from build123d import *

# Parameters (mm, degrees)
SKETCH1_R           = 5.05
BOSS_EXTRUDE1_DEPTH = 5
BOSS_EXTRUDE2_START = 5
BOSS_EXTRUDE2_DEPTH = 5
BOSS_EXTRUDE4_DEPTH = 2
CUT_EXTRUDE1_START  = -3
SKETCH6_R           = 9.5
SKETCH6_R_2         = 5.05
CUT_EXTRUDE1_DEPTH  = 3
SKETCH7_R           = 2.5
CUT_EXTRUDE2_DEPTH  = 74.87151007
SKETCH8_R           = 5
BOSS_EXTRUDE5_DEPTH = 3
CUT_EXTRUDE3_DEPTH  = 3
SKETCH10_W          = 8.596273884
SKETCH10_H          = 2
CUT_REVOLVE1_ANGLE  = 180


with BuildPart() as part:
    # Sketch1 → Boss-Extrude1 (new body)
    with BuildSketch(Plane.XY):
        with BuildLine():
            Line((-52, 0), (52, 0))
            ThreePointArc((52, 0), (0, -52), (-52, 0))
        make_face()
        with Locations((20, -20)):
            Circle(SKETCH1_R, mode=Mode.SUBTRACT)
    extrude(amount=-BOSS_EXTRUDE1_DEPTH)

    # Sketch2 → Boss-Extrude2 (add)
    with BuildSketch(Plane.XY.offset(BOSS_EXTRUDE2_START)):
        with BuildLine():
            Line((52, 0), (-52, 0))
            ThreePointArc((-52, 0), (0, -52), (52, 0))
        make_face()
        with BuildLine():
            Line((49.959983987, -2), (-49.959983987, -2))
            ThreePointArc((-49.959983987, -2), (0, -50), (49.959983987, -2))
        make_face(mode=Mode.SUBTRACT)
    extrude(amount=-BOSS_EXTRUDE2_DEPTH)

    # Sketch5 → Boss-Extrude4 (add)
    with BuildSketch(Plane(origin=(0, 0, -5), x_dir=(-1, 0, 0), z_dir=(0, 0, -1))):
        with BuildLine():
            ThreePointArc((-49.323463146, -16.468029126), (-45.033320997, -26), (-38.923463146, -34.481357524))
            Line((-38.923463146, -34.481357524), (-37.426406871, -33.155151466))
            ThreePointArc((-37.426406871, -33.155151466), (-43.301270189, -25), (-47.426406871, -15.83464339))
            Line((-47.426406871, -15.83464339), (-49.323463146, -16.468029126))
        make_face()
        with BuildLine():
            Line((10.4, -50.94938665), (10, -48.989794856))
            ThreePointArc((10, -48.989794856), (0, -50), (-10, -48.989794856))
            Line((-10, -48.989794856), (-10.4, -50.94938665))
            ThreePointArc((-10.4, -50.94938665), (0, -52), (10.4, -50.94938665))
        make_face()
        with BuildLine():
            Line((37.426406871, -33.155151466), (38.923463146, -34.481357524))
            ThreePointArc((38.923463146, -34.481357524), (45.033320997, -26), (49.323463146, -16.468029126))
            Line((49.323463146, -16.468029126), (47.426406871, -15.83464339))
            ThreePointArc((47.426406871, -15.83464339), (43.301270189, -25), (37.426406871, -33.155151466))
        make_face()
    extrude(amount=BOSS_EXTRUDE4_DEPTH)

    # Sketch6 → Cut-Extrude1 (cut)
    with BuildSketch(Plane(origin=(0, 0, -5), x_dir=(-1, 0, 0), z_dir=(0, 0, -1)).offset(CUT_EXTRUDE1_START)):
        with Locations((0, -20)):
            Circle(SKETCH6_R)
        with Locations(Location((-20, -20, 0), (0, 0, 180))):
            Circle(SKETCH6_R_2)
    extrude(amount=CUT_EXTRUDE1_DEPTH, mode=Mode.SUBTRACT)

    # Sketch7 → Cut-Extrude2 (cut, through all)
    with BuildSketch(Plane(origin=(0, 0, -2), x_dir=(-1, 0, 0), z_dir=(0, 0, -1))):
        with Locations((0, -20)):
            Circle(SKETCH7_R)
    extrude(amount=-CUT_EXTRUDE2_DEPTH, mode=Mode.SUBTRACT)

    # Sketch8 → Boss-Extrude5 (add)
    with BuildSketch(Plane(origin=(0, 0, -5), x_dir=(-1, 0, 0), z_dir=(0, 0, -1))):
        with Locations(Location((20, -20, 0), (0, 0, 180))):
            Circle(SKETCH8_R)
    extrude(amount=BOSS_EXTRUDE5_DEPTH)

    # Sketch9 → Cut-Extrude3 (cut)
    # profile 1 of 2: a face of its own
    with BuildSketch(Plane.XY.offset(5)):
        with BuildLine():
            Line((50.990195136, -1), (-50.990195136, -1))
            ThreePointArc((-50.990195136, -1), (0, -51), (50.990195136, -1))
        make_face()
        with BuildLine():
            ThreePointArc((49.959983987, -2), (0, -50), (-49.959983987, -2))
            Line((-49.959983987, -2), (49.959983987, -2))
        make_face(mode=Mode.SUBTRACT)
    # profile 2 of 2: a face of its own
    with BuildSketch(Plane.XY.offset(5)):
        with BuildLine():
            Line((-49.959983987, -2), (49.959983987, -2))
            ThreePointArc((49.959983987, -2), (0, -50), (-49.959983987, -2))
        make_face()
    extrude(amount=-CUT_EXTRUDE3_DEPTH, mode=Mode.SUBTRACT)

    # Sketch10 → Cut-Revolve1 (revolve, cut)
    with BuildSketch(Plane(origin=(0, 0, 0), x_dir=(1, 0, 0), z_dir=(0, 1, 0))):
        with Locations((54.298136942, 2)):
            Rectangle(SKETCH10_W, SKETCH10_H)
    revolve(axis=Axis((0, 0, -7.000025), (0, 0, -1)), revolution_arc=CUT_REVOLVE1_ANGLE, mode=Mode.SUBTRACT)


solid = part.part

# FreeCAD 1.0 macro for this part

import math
import FreeCAD as App
import Part
import Sketcher
from FreeCAD import Vector
Q = App.Units.Quantity


def add_polygon(sketch, points):
    """Adds a closed chain of lines whose ends are joined by coincident constraints."""
    first, n = sketch.GeometryCount, len(points)
    for a, b in zip(points, points[1:] + points[:1]):
        sketch.addGeometry(Part.LineSegment(App.Vector(*a, 0), App.Vector(*b, 0)), False)
    for i in range(n):
        sketch.addConstraint(Sketcher.Constraint("Coincident", first + i, 2, first + (i + 1) % n, 1))

doc = App.newDocument("Part")
params = doc.addObject("Spreadsheet::Sheet", "Params")
for row, (alias, value) in enumerate([
    ("sketch1_radius", "52 mm"),
    ("sketch1_diameter", "10.1 mm"),
    ("pad1_length", "5 mm"),
    ("sketch2_radius", "52 mm"),
    ("sketch2_radius2", "50 mm"),
    ("pad2_length", "5 mm"),
    ("sketch3_radius", "52 mm"),
    ("sketch3_radius2", "50 mm"),
    ("pad3_length", "2 mm"),
    ("sketch4_diameter", "19 mm"),
    ("sketch4_diameter2", "10.1 mm"),
    ("pocket1_length", "3 mm"),
    ("sketch5_diameter", "5 mm"),
    ("sketch6_diameter", "10 mm"),
    ("pad4_length", "3 mm"),
    ("sketch7_radius", "51 mm"),
    ("pocket3_length", "3 mm"),
    ("sketch8_height", "2 mm"),
    ("groove_angle", "180 deg"),
], start=1):
    params.set(f"A{row}", alias)
    params.set(f"B{row}", "=" + value)
    params.setAlias(f"B{row}", alias)

body = doc.addObject("PartDesign::Body", "Body")

# Sketch on XY plane
sketch1 = doc.addObject("Sketcher::SketchObject", "Sketch")
body.addObject(sketch1)
sketch1.AttachmentSupport = (doc.XY_Plane, [""])
sketch1.MapMode = "FlatFace"
sketch1.addGeometry([
    Part.LineSegment(Vector(52, 0, 0), Vector(-52, 0, 0)),
    Part.ArcOfCircle(Part.Circle(Vector(0, 0, 0), Vector(0, 0, 1), 52), math.radians(180), math.radians(360)),
    Part.Circle(Vector(20, -20, 0), Vector(0, 0, 1), 5),
], False)
sketch1.addConstraint([
    Sketcher.Constraint("Coincident", 0, 1, 1, 2),
    Sketcher.Constraint("Coincident", 1, 1, 0, 2),
    Sketcher.Constraint("Horizontal", 0),
    Sketcher.Constraint("Coincident", 1, 3, -1, 1),
    Sketcher.Constraint("PointOnObject", 0, 1, -1),
    Sketcher.Constraint("Radius", 1, Q("52 mm")),
    Sketcher.Constraint("Diameter", 2, Q("10.1 mm")),
    Sketcher.Constraint("DistanceX", -1, 1, 2, 3, Q("20 mm")),
    Sketcher.Constraint("DistanceY", 2, 3, -1, 1, Q("20 mm")),
])
sketch1.setExpression("Constraints[5]", "Params.sketch1_radius")
sketch1.setExpression("Constraints[6]", "Params.sketch1_diameter")
pad1 = doc.addObject("PartDesign::Pad", "Pad")
body.addObject(pad1)
pad1.Profile = sketch1
pad1.setExpression("Length", "Params.pad1_length")
pad1.Reversed = True

# Sketch on XY plane
sketch2 = doc.addObject("Sketcher::SketchObject", "Sketch001")
body.addObject(sketch2)
sketch2.AttachmentSupport = (doc.XY_Plane, [""])
sketch2.MapMode = "FlatFace"
sketch2.AttachmentOffset = App.Placement(Vector(0, 0, 5), App.Rotation())
sketch2.addGeometry([
    Part.LineSegment(Vector(52, 0, 0), Vector(-52, 0, 0)),
    Part.ArcOfCircle(Part.Circle(Vector(0, 0, 0), Vector(0, 0, 1), 52), math.radians(180), math.radians(360)),
    Part.LineSegment(Vector(-50, -2, 0), Vector(50, -2, 0)),
    Part.ArcOfCircle(Part.Circle(Vector(0, 0, 0), Vector(0, 0, 1), 50), math.radians(-178), math.radians(-2)),
], False)
sketch2.addConstraint([
    Sketcher.Constraint("Coincident", 0, 1, 1, 2),
    Sketcher.Constraint("Coincident", 1, 1, 0, 2),
    Sketcher.Constraint("Coincident", 2, 1, 3, 1),
    Sketcher.Constraint("Coincident", 3, 2, 2, 2),
    Sketcher.Constraint("Horizontal", 0),
    Sketcher.Constraint("Horizontal", 2),
    Sketcher.Constraint("Coincident", 1, 3, -1, 1),
    Sketcher.Constraint("Coincident", 3, 3, -1, 1),
    Sketcher.Constraint("PointOnObject", 0, 1, -1),
    Sketcher.Constraint("Radius", 1, Q("52 mm")),
    Sketcher.Constraint("Radius", 3, Q("50 mm")),
    Sketcher.Constraint("DistanceY", 2, 1, -1, 1, Q("2 mm")),
])
sketch2.setExpression("Constraints[9]", "Params.sketch2_radius")
sketch2.setExpression("Constraints[10]", "Params.sketch2_radius2")
pad2 = doc.addObject("PartDesign::Pad", "Pad001")
body.addObject(pad2)
pad2.Profile = sketch2
pad2.setExpression("Length", "Params.pad2_length")
pad2.Reversed = True

# Sketch on XY plane
sketch3 = doc.addObject("Sketcher::SketchObject", "Sketch002")
body.addObject(sketch3)
sketch3.AttachmentSupport = (doc.XY_Plane, [""])
sketch3.MapMode = "FlatFace"
sketch3.AttachmentOffset = App.Placement(Vector(0, 0, -5), App.Rotation())
sketch3.addGeometry([
    Part.ArcOfCircle(Part.Circle(Vector(0, 0, 0), Vector(0, 0, 1), 52), math.radians(-42), math.radians(-18)),  # 0
    Part.LineSegment(Vector(38.9, -34.5, 0), Vector(37.4, -33.2, 0)),  # 1
    Part.ArcOfCircle(Part.Circle(Vector(0, 0, 0), Vector(0, 0, 1), 50), math.radians(-42), math.radians(-18)),  # 2
    Part.LineSegment(Vector(47.4, -15.8, 0), Vector(49.3, -16.5, 0)),  # 3
    Part.LineSegment(Vector(-10.4, -50.9, 0), Vector(-10, -49, 0)),  # 4
    Part.ArcOfCircle(Part.Circle(Vector(0, 0, 0), Vector(0, 0, 1), 50), math.radians(-102), math.radians(-78)),  # 5
    Part.LineSegment(Vector(10, -49, 0), Vector(10.4, -50.9, 0)),  # 6
    Part.ArcOfCircle(Part.Circle(Vector(0, 0, 0), Vector(0, 0, 1), 52), math.radians(-102), math.radians(-78)),  # 7
    Part.LineSegment(Vector(-37.4, -33.2, 0), Vector(-38.9, -34.5, 0)),  # 8
    Part.ArcOfCircle(Part.Circle(Vector(0, 0, 0), Vector(0, 0, 1), 52), math.radians(-162), math.radians(-138)),  # 9
    Part.LineSegment(Vector(-49.3, -16.5, 0), Vector(-47.4, -15.8, 0)),  # 10
    Part.ArcOfCircle(Part.Circle(Vector(0, 0, 0), Vector(0, 0, 1), 50), math.radians(-162), math.radians(-138)),  # 11
], False)
sketch3.addConstraint([
    Sketcher.Constraint("Coincident", 0, 1, 1, 1),
    Sketcher.Constraint("Coincident", 1, 2, 2, 1),
    Sketcher.Constraint("Coincident", 2, 2, 3, 1),
    Sketcher.Constraint("Coincident", 3, 2, 0, 2),
    Sketcher.Constraint("Coincident", 4, 2, 5, 1),
    Sketcher.Constraint("Coincident", 5, 2, 6, 1),
    Sketcher.Constraint("Coincident", 6, 2, 7, 2),
    Sketcher.Constraint("Coincident", 7, 1, 4, 1),
    Sketcher.Constraint("Coincident", 8, 2, 9, 2),
    Sketcher.Constraint("Coincident", 9, 1, 10, 1),
    Sketcher.Constraint("Coincident", 10, 2, 11, 1),
    Sketcher.Constraint("Coincident", 11, 2, 8, 1),
    Sketcher.Constraint("Coincident", 0, 3, -1, 1),
    Sketcher.Constraint("Coincident", 2, 3, -1, 1),
    Sketcher.Constraint("Coincident", 5, 3, -1, 1),
    Sketcher.Constraint("Coincident", 7, 3, -1, 1),
    Sketcher.Constraint("Coincident", 9, 3, -1, 1),
    Sketcher.Constraint("Coincident", 11, 3, -1, 1),
    Sketcher.Constraint("Equal", 2, 5),
    Sketcher.Constraint("Equal", 0, 7),
    Sketcher.Constraint("Equal", 7, 9),
    Sketcher.Constraint("Equal", 5, 11),
    Sketcher.Constraint("Horizontal", 4, 2, 5, 2),
    Sketcher.Constraint("Horizontal", 6, 2, 7, 1),
    Sketcher.Constraint("Horizontal", 0, 1, 8, 2),
    Sketcher.Constraint("Horizontal", 3, 2, 9, 1),
    Sketcher.Constraint("Horizontal", 2, 2, 10, 2),
    Sketcher.Constraint("Horizontal", 1, 2, 11, 2),
    Sketcher.Constraint("Radius", 0, Q("52 mm")),
    Sketcher.Constraint("Radius", 2, Q("50 mm")),
    Sketcher.Constraint("DistanceX", 4, 2, -1, 1, Q("10 mm")),
    Sketcher.Constraint("DistanceX", 1, 2, 2, 2, Q("10 mm")),
    Sketcher.Constraint("DistanceX", -1, 1, 6, 2, Q("10.4 mm")),
    Sketcher.Constraint("DistanceX", 0, 1, 3, 2, Q("10.4 mm")),
    Sketcher.Constraint("DistanceY", 1, 2, -1, 1, Q("33.155151 mm")),
    Sketcher.Constraint("DistanceY", 3, 2, -1, 1, Q("16.468029 mm")),
])
sketch3.setExpression("Constraints[28]", "Params.sketch3_radius")
sketch3.setExpression("Constraints[29]", "Params.sketch3_radius2")
pad3 = doc.addObject("PartDesign::Pad", "Pad002")
body.addObject(pad3)
pad3.Profile = sketch3
pad3.setExpression("Length", "Params.pad3_length")
pad3.Reversed = True

# Sketch on XY plane
sketch4 = doc.addObject("Sketcher::SketchObject", "Sketch003")
body.addObject(sketch4)
sketch4.AttachmentSupport = (doc.XY_Plane, [""])
sketch4.MapMode = "FlatFace"
sketch4.AttachmentOffset = App.Placement(Vector(0, 0, -2), App.Rotation())
sketch4.addGeometry([
    Part.Circle(Vector(0, -20, 0), Vector(0, 0, 1), 10),
    Part.Circle(Vector(20, -20, 0), Vector(0, 0, 1), 5),
], False)
sketch4.addConstraint([
    Sketcher.Constraint("PointOnObject", 0, 3, -2),
    Sketcher.Constraint("Horizontal", 0, 3, 1, 3),
    Sketcher.Constraint("Diameter", 0, Q("19 mm")),
    Sketcher.Constraint("Diameter", 1, Q("10.1 mm")),
    Sketcher.Constraint("DistanceY", 0, 3, -1, 1, Q("20 mm")),
    Sketcher.Constraint("DistanceX", -1, 1, 1, 3, Q("20 mm")),
])
sketch4.setExpression("Constraints[2]", "Params.sketch4_diameter")
sketch4.setExpression("Constraints[3]", "Params.sketch4_diameter2")
pocket1 = doc.addObject("PartDesign::Pocket", "Pocket")
body.addObject(pocket1)
pocket1.Profile = sketch4
pocket1.setExpression("Length", "Params.pocket1_length")

# Sketch on XY plane
sketch5 = doc.addObject("Sketcher::SketchObject", "Sketch004")
body.addObject(sketch5)
sketch5.AttachmentSupport = (doc.XY_Plane, [""])
sketch5.MapMode = "FlatFace"
sketch5.AttachmentOffset = App.Placement(Vector(0, 0, -2), App.Rotation())
sketch5.addGeometry(Part.Circle(Vector(0, -20, 0), Vector(0, 0, 1), 2.5), False)
sketch5.addConstraint([
    Sketcher.Constraint("PointOnObject", 0, 3, -2),
    Sketcher.Constraint("Diameter", 0, Q("5 mm")),
    Sketcher.Constraint("DistanceY", 0, 3, -1, 1, Q("20 mm")),
])
sketch5.setExpression("Constraints[1]", "Params.sketch5_diameter")
pocket2 = doc.addObject("PartDesign::Pocket", "Pocket001")
body.addObject(pocket2)
pocket2.Profile = sketch5
pocket2.Type = "ThroughAll"
pocket2.Reversed = True

# Sketch on XY plane
sketch6 = doc.addObject("Sketcher::SketchObject", "Sketch005")
body.addObject(sketch6)
sketch6.AttachmentSupport = (doc.XY_Plane, [""])
sketch6.MapMode = "FlatFace"
sketch6.AttachmentOffset = App.Placement(Vector(0, 0, -5), App.Rotation())
sketch6.addGeometry(Part.Circle(Vector(-20, -20, 0), Vector(0, 0, 1), 5), False)
sketch6.addConstraint([
    Sketcher.Constraint("Diameter", 0, Q("10 mm")),
    Sketcher.Constraint("DistanceX", 0, 3, -1, 1, Q("20 mm")),
    Sketcher.Constraint("DistanceY", 0, 3, -1, 1, Q("20 mm")),
])
sketch6.setExpression("Constraints[0]", "Params.sketch6_diameter")
pad4 = doc.addObject("PartDesign::Pad", "Pad003")
body.addObject(pad4)
pad4.Profile = sketch6
pad4.setExpression("Length", "Params.pad4_length")
pad4.Reversed = True

# Sketch on XY plane
sketch7 = doc.addObject("Sketcher::SketchObject", "Sketch006")
body.addObject(sketch7)
sketch7.AttachmentSupport = (doc.XY_Plane, [""])
sketch7.MapMode = "FlatFace"
sketch7.AttachmentOffset = App.Placement(Vector(0, 0, 5), App.Rotation())
sketch7.addGeometry([
    Part.LineSegment(Vector(51, -1, 0), Vector(-51, -1, 0)),
    Part.ArcOfCircle(Part.Circle(Vector(0, 0, 0), Vector(0, 0, 1), 51), math.radians(-179), math.radians(-1)),
], False)
sketch7.addConstraint([
    Sketcher.Constraint("Coincident", 0, 1, 1, 2),
    Sketcher.Constraint("Coincident", 1, 1, 0, 2),
    Sketcher.Constraint("Horizontal", 0),
    Sketcher.Constraint("Coincident", 1, 3, -1, 1),
    Sketcher.Constraint("Radius", 1, Q("51 mm")),
    Sketcher.Constraint("DistanceY", 0, 1, -1, 1, Q("1 mm")),
])
sketch7.setExpression("Constraints[4]", "Params.sketch7_radius")
pocket3 = doc.addObject("PartDesign::Pocket", "Pocket002")
body.addObject(pocket3)
pocket3.Profile = sketch7
pocket3.setExpression("Length", "Params.pocket3_length")

# Sketch on XZ plane
sketch8 = doc.addObject("Sketcher::SketchObject", "Sketch007")
body.addObject(sketch8)
sketch8.AttachmentSupport = (doc.XZ_Plane, [""])
sketch8.MapMode = "FlatFace"
add_polygon(sketch8, [(50, -3), (50, -1), (58.6, -1), (58.6, -3)])  # lines 0-3
sketch8.addConstraint([
    Sketcher.Constraint("Vertical", 0),
    Sketcher.Constraint("Horizontal", 1),
    Sketcher.Constraint("Vertical", 2),
    Sketcher.Constraint("Horizontal", 3),
    Sketcher.Constraint("DistanceY", 0, 1, 0, 2, Q("2 mm")),
    Sketcher.Constraint("DistanceX", -1, 1, 0, 2, Q("50 mm")),
    Sketcher.Constraint("DistanceY", 0, 2, -1, 1, Q("1 mm")),
    Sketcher.Constraint("DistanceX", 1, 1, 1, 2, Q("8.596274 mm")),
])
sketch8.setExpression("Constraints[8]", "Params.sketch8_height")
groove = doc.addObject("PartDesign::Groove", "Groove")
body.addObject(groove)
groove.Profile = sketch8
groove.ReferenceAxis = (sketch8, ["V_Axis"])
groove.setExpression("Angle", "Params.groove_angle")
groove.Reversed = True

doc.recompute()
